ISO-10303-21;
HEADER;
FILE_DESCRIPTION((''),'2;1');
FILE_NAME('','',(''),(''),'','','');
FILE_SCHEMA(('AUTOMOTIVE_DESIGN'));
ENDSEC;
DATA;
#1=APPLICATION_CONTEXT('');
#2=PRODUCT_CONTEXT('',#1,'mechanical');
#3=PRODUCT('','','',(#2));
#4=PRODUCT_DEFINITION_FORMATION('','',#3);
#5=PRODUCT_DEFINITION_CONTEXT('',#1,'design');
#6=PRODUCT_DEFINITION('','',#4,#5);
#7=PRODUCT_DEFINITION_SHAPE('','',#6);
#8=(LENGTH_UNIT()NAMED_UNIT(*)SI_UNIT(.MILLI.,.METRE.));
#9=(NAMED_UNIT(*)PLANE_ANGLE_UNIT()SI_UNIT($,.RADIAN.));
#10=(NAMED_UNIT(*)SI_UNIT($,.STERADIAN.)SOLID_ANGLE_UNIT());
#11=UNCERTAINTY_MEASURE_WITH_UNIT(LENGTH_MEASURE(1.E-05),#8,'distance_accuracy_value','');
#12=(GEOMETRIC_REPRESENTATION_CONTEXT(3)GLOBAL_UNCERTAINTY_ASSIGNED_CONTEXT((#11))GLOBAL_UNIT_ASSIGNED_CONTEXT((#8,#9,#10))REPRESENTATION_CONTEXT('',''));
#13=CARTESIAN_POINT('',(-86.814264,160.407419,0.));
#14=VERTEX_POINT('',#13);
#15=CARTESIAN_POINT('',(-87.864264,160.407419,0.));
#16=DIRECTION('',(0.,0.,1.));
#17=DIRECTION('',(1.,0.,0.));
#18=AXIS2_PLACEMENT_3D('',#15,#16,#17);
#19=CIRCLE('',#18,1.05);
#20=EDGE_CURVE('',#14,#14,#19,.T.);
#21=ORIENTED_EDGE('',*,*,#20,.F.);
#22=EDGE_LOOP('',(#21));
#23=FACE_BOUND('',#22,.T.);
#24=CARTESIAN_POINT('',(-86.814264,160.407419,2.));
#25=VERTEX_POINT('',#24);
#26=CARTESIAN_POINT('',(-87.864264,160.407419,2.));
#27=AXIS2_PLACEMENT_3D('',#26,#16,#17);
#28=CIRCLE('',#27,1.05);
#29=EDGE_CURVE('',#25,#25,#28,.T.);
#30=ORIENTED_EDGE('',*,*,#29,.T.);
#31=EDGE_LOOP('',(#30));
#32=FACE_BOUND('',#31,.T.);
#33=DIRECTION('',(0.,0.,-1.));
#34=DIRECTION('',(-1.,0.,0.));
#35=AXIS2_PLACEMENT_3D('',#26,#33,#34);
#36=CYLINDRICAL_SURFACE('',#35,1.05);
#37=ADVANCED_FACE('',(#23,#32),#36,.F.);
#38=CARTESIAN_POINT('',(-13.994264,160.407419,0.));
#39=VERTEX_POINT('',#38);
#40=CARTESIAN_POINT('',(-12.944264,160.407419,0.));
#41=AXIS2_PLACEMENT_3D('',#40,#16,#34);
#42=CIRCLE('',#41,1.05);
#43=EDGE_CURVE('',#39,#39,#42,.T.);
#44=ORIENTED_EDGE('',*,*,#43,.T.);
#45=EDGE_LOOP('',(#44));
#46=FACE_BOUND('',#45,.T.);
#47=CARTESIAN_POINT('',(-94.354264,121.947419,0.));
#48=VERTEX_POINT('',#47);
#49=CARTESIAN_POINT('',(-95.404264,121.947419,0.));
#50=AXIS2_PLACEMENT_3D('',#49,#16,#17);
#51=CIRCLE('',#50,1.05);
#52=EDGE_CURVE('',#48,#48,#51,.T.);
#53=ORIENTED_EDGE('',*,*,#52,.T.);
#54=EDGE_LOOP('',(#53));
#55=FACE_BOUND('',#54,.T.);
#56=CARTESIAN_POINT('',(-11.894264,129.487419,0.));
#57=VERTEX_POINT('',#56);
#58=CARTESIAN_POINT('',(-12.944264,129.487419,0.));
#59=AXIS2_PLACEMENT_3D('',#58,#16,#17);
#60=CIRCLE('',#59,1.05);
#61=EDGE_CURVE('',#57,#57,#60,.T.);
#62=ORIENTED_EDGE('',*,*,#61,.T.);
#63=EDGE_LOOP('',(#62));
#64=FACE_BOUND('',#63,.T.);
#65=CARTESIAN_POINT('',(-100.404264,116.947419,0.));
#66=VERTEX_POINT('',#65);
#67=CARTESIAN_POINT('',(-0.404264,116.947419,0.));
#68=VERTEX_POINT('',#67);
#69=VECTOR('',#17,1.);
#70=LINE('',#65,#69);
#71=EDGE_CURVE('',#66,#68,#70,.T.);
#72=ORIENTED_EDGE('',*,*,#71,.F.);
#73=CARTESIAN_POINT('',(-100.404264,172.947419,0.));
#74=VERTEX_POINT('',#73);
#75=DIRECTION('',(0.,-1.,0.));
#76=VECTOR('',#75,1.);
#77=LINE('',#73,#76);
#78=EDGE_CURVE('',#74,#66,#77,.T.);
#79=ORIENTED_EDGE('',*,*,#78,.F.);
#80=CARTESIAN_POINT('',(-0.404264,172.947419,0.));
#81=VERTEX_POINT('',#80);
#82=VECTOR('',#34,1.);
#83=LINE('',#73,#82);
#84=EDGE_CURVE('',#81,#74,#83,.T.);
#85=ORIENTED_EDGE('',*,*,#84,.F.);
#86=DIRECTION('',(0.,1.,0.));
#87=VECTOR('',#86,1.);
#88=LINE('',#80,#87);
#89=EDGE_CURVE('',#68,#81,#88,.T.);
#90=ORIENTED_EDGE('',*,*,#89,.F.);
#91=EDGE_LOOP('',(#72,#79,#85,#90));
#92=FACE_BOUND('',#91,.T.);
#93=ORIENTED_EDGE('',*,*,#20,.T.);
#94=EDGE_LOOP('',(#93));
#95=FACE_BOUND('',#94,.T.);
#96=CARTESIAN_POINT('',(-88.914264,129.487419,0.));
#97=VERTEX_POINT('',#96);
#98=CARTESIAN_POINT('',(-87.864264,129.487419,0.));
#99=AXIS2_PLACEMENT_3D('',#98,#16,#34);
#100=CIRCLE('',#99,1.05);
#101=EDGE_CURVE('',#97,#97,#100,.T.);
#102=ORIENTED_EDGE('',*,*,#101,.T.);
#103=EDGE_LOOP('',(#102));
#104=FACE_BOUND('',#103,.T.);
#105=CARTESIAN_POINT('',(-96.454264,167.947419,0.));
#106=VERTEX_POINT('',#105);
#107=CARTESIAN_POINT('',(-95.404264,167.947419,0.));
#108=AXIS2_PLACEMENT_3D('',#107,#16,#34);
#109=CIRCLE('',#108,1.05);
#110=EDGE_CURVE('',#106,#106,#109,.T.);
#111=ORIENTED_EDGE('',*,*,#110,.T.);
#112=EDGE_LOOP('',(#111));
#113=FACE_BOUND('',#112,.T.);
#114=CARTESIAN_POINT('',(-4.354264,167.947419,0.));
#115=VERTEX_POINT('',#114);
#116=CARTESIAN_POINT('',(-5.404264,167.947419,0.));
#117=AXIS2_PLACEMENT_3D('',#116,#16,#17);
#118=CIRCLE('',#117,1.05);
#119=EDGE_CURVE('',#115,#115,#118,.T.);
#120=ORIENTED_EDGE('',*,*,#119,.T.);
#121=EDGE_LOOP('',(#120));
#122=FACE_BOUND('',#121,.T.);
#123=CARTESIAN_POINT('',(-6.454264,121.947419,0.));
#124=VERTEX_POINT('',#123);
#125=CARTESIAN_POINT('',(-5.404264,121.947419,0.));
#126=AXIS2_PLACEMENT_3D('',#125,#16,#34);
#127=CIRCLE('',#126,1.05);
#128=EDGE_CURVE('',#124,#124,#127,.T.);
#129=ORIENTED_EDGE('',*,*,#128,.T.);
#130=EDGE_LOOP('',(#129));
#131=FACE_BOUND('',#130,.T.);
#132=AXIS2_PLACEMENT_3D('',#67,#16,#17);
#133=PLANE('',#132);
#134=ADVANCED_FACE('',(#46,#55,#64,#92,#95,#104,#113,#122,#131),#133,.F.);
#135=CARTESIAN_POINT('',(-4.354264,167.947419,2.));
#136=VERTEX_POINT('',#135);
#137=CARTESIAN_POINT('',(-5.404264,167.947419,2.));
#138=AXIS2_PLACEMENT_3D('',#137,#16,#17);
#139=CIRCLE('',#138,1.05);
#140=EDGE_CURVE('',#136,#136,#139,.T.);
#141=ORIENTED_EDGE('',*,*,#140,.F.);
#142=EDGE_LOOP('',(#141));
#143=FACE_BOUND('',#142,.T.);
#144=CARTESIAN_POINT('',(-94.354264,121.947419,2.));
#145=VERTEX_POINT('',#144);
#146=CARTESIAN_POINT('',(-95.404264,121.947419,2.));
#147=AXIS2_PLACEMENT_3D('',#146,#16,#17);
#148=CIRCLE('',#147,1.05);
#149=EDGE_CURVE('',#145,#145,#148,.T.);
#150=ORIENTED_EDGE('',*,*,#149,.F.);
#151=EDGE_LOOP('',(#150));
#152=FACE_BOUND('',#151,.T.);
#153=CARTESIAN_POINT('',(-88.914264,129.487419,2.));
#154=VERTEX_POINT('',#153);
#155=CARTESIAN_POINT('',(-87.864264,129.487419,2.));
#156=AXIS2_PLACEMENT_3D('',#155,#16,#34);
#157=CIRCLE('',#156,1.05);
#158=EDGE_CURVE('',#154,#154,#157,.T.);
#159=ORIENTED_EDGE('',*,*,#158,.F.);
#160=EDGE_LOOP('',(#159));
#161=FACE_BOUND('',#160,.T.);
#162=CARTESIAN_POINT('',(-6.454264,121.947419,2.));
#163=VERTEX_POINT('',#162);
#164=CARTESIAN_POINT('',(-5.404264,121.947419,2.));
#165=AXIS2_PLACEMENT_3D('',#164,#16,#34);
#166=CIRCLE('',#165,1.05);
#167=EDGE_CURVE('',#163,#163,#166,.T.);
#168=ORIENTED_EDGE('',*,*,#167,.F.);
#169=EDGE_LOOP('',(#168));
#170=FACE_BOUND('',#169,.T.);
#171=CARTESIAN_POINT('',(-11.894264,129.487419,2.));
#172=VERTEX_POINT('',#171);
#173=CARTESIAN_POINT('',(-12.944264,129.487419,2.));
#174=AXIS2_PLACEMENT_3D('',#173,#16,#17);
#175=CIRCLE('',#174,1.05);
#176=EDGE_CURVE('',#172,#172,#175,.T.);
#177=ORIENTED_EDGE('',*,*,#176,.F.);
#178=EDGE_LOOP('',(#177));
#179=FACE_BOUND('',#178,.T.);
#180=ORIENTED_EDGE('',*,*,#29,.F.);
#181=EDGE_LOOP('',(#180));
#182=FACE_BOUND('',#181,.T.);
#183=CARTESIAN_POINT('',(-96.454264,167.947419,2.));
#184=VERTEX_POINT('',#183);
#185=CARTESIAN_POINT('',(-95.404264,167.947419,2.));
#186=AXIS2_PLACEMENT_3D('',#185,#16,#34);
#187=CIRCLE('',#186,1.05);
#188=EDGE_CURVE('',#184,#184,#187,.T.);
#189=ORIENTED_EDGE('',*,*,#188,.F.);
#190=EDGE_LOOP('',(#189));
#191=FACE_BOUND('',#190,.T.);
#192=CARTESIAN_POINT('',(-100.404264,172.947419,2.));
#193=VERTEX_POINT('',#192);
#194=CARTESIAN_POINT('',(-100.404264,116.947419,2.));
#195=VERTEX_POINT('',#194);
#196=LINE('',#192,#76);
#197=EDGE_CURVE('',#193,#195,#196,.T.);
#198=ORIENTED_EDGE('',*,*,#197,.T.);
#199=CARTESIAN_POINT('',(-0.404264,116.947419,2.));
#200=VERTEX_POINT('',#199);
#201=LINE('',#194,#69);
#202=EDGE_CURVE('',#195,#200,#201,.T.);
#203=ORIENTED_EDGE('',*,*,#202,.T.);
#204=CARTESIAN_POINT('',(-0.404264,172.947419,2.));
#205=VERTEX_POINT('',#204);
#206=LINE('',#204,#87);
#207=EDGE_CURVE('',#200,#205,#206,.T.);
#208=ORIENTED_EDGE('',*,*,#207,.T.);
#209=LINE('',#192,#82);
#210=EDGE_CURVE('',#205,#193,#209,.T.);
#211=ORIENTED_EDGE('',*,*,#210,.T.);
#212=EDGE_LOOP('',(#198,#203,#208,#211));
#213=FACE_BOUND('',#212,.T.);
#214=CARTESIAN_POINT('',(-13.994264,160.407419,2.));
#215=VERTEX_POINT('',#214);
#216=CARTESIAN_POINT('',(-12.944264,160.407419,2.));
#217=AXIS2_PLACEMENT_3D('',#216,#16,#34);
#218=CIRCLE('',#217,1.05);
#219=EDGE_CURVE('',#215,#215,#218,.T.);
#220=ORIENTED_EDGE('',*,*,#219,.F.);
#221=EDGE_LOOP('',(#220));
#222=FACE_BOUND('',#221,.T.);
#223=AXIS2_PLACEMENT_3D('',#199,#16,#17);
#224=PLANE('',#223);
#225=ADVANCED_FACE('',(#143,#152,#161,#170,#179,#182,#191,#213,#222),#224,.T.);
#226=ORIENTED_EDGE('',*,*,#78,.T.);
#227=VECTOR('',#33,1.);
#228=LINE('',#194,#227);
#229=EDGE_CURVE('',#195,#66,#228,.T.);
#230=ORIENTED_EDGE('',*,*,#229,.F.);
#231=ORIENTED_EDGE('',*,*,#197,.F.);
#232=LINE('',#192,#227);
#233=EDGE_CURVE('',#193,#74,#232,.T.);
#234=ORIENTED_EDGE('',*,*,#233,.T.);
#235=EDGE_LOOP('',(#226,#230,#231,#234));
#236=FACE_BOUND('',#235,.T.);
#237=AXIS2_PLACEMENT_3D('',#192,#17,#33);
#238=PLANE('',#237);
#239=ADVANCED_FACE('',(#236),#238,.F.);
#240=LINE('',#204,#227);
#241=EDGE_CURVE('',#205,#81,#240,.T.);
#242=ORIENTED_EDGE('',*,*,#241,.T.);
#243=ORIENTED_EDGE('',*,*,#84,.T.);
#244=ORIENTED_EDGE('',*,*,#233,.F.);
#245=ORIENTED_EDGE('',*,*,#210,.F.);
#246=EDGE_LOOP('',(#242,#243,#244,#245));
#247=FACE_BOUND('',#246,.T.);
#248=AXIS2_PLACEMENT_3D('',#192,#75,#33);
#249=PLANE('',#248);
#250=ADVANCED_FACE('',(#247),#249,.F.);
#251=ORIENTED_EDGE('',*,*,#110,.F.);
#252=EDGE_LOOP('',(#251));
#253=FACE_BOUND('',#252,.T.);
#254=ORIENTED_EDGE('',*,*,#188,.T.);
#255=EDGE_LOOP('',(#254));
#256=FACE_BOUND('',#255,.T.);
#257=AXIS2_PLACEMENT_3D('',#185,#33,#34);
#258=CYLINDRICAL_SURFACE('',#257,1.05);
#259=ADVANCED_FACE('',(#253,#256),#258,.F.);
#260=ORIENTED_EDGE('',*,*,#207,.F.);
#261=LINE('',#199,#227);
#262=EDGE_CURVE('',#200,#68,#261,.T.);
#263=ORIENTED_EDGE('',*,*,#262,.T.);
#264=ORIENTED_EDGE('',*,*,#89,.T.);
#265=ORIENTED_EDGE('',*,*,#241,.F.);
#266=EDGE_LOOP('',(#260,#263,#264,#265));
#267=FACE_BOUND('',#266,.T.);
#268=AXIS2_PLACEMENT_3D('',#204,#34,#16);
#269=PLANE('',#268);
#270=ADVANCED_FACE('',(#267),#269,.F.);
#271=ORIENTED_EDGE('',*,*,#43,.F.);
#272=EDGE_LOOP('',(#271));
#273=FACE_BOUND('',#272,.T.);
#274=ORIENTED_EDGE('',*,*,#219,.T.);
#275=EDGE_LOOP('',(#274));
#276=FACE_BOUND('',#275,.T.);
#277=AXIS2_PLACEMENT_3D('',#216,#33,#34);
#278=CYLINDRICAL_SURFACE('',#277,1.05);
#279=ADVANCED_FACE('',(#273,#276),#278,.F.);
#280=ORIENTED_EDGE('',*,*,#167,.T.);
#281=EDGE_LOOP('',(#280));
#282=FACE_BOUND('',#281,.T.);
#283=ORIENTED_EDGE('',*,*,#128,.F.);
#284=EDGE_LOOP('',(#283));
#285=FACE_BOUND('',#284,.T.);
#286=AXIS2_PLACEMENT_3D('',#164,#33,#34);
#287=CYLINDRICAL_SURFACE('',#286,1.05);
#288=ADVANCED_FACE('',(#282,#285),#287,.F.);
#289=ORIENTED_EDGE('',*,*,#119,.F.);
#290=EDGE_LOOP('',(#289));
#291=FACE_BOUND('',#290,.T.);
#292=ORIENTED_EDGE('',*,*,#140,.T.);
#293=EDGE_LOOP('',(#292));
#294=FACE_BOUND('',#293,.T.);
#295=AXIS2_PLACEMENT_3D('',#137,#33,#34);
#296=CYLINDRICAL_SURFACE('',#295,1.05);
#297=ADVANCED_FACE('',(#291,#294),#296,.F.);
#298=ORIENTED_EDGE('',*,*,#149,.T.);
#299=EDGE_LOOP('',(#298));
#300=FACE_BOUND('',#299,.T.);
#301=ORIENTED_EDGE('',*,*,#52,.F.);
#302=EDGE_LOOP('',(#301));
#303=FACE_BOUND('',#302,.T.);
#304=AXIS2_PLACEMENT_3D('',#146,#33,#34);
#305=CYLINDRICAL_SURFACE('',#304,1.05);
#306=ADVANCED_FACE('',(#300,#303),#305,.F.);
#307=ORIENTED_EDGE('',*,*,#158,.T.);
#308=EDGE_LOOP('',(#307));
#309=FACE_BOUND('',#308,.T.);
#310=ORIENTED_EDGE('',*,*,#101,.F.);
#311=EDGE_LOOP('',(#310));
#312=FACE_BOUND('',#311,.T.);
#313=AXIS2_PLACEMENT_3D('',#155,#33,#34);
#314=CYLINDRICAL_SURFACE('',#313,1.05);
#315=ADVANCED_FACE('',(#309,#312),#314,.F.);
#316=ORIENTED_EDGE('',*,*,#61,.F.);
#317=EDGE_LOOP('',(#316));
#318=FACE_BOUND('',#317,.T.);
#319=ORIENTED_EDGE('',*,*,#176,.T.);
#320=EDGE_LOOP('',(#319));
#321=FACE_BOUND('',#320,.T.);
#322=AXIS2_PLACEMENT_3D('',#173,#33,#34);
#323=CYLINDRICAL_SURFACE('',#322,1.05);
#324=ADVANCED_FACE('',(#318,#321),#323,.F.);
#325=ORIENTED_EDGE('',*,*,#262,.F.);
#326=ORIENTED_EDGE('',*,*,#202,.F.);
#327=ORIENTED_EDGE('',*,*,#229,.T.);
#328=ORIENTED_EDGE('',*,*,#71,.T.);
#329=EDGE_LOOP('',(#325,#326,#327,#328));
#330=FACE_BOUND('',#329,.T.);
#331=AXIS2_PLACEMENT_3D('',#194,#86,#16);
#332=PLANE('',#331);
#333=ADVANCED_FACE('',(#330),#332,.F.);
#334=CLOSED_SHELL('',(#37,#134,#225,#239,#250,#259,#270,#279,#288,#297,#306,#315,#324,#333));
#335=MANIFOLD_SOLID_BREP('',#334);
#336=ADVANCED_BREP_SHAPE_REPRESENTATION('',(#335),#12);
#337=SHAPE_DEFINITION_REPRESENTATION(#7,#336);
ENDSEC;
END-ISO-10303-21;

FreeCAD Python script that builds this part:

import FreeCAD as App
import Part
import Sketcher


def add_polygon(sketch, points):
    """Adds a closed chain of lines whose ends are joined by coincident constraints."""
    first, n = sketch.GeometryCount, len(points)
    for a, b in zip(points, points[1:] + points[:1]):
        sketch.addGeometry(Part.LineSegment(App.Vector(*a, 0), App.Vector(*b, 0)), False)
    for i in range(n):
        sketch.addConstraint(Sketcher.Constraint("Coincident", first + i, 2, first + (i + 1) % n, 1))

doc = App.newDocument("Part")
body = doc.addObject("PartDesign::Body", "Body")

sketch1 = body.newObject("Sketcher::SketchObject", "Sketch")
sketch1.AttachmentSupport = (doc.getObject("XY_Plane"), [""])
sketch1.MapMode = "FlatFace"
add_polygon(sketch1, [(-100.4, 172.9), (-100.4, 116.9), (-0.4, 116.9), (-0.4, 172.9)])
sketch1.addGeometry(Part.Circle(App.Vector(-95.4, 121.9, 0), App.Vector(0, 0, 1), 1.1), False)
sketch1.addGeometry(Part.Circle(App.Vector(-87.9, 129.5, 0), App.Vector(0, 0, 1), 1.1), False)
sketch1.addGeometry(Part.Circle(App.Vector(-5.4, 121.9, 0), App.Vector(0, 0, 1), 1.1), False)
sketch1.addGeometry(Part.Circle(App.Vector(-12.9, 129.5, 0), App.Vector(0, 0, 1), 1.1), False)
sketch1.addGeometry(Part.Circle(App.Vector(-87.9, 160.4, 0), App.Vector(0, 0, 1), 1.1), False)
sketch1.addGeometry(Part.Circle(App.Vector(-95.4, 167.9, 0), App.Vector(0, 0, 1), 1.1), False)
sketch1.addGeometry(Part.Circle(App.Vector(-12.9, 160.4, 0), App.Vector(0, 0, 1), 1.1), False)
sketch1.addGeometry(Part.Circle(App.Vector(-5.4, 167.9, 0), App.Vector(0, 0, 1), 1.1), False)
sketch1.addConstraint([
    Sketcher.Constraint("Vertical", 0),
    Sketcher.Constraint("Horizontal", 1),
    Sketcher.Constraint("Vertical", 2),
    Sketcher.Constraint("Horizontal", 3),
    Sketcher.Constraint("Equal", 4, 5),
    Sketcher.Constraint("Equal", 5, 6),
    Sketcher.Constraint("Equal", 6, 7),
    Sketcher.Constraint("Equal", 7, 8),
    Sketcher.Constraint("Equal", 8, 9),
    Sketcher.Constraint("Equal", 9, 10),
    Sketcher.Constraint("Equal", 10, 11),
    Sketcher.Constraint("Horizontal", 4, 3, 6, 3),
    Sketcher.Constraint("Horizontal", 5, 3, 7, 3),
    Sketcher.Constraint("Horizontal", 8, 3, 10, 3),
    Sketcher.Constraint("Horizontal", 9, 3, 11, 3),
    Sketcher.Constraint("Vertical", 5, 3, 8, 3),
    Sketcher.Constraint("Vertical", 4, 3, 9, 3),
    Sketcher.Constraint("Vertical", 7, 3, 10, 3),
    Sketcher.Constraint("Vertical", 6, 3, 11, 3),
    Sketcher.Constraint("Diameter", 4, 2.1),
    Sketcher.Constraint("DistanceX", 1, 1, 1, 2, 100.0),
    Sketcher.Constraint("DistanceY", 0, 2, 0, 1, 56.0),
    Sketcher.Constraint("DistanceX", 4, 3, 6, 3, 90.0),
    Sketcher.Constraint("DistanceY", 4, 3, 9, 3, 46.0),
    Sketcher.Constraint("DistanceX", 0, 2, 4, 3, 5.0),
    Sketcher.Constraint("DistanceY", 0, 2, 4, 3, 5.0),
    Sketcher.Constraint("DistanceX", 4, 3, 5, 3, 7.54),
    Sketcher.Constraint("DistanceY", 4, 3, 5, 3, 7.54),
    Sketcher.Constraint("DistanceX", 7, 3, 6, 3, 7.54),
    Sketcher.Constraint("DistanceY", 5, 3, 8, 3, 30.92),
    Sketcher.Constraint("DistanceY", -1, 1, 4, 3, 121.947419),
    Sketcher.Constraint("DistanceX", 4, 3, -1, 1, 95.404264),
])
pad1 = body.newObject("PartDesign::Pad", "Pad")
pad1.Profile = sketch1
pad1.Length = 2

doc.recompute()
